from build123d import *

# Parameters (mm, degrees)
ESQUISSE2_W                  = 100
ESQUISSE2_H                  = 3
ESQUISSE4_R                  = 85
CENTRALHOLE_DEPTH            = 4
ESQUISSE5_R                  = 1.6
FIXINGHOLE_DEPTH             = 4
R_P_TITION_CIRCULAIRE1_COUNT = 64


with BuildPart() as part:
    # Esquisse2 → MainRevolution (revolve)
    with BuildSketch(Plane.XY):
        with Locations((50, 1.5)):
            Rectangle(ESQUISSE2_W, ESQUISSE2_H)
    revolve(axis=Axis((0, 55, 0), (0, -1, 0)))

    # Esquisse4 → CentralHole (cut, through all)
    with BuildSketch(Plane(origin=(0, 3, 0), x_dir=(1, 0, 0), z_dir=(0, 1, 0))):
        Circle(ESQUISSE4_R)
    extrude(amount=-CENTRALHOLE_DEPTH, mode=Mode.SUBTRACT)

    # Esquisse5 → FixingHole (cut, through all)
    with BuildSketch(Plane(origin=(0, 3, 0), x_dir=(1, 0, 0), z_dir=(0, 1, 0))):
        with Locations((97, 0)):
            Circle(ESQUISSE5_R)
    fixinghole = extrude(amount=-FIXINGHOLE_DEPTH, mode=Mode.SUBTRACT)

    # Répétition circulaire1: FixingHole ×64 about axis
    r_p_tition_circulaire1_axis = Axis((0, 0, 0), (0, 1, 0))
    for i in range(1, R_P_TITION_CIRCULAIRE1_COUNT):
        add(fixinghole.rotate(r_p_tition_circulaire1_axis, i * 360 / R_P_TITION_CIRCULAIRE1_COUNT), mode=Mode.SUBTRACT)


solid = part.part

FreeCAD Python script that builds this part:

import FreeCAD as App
import Part
import Sketcher

V = App.Vector
Q = App.Units.Quantity


def add_polygon(sketch, points):
    """Adds a closed chain of lines whose ends are joined by coincident constraints."""
    first, n = sketch.GeometryCount, len(points)
    for a, b in zip(points, points[1:] + points[:1]):
        sketch.addGeometry(Part.LineSegment(App.Vector(*a, 0), App.Vector(*b, 0)), False)
    for i in range(n):
        sketch.addConstraint(Sketcher.Constraint("Coincident", first + i, 2, first + (i + 1) % n, 1))

doc = App.newDocument("Part")
body = doc.addObject("PartDesign::Body", "Body")

# Sketch on XY plane
sketch1 = doc.addObject("Sketcher::SketchObject", "Sketch")
body.addObject(sketch1)
sketch1.AttachmentSupport = (doc.XY_Plane, [""])
sketch1.MapMode = "FlatFace"
add_polygon(sketch1, [(0, 3), (0, 0), (100, 0), (100, 3)])  # lines 0-3
sketch1.addConstraint([
    Sketcher.Constraint("Vertical", 0),
    Sketcher.Constraint("Horizontal", 1),
    Sketcher.Constraint("Vertical", 2),
    Sketcher.Constraint("Horizontal", 3),
    Sketcher.Constraint("Coincident", 0, 2, -1, 1),
    Sketcher.Constraint("DistanceX", 1, 1, 1, 2, Q("100 mm")),
    Sketcher.Constraint("DistanceY", 0, 2, 0, 1, Q("3 mm")),
])
revolution = doc.addObject("PartDesign::Revolution", "Revolution")
body.addObject(revolution)
revolution.Profile = sketch1
revolution.ReferenceAxis = (sketch1, ["V_Axis"])
revolution.Angle = 360

# Sketch on XZ plane
sketch2 = doc.addObject("Sketcher::SketchObject", "Sketch001")
body.addObject(sketch2)
sketch2.AttachmentSupport = (doc.XZ_Plane, [""])
sketch2.MapMode = "FlatFace"
sketch2.AttachmentOffset = App.Placement(V(0, 0, -3), App.Rotation())
sketch2.addGeometry(Part.Circle(V(0, 0, 0), V(0, 0, 1), 85), False)
sketch2.addConstraint([
    Sketcher.Constraint("Coincident", 0, 3, -1, 1),
    Sketcher.Constraint("Diameter", 0, Q("170 mm")),
])
pocket1 = doc.addObject("PartDesign::Pocket", "Pocket")
body.addObject(pocket1)
pocket1.Profile = sketch2
pocket1.Type = "ThroughAll"
pocket1.Reversed = True

# Sketch on XZ plane
sketch3 = doc.addObject("Sketcher::SketchObject", "Sketch002")
body.addObject(sketch3)
sketch3.AttachmentSupport = (doc.XZ_Plane, [""])
sketch3.MapMode = "FlatFace"
sketch3.AttachmentOffset = App.Placement(V(0, 0, -3), App.Rotation())
sketch3.addGeometry(Part.Circle(V(97, 0, 0), V(0, 0, 1), 1.6), False)
sketch3.addConstraint([
    Sketcher.Constraint("PointOnObject", 0, 3, -1),
    Sketcher.Constraint("Diameter", 0, Q("3.2 mm")),
    Sketcher.Constraint("DistanceX", -1, 1, 0, 3, Q("97 mm")),
])
pocket2 = doc.addObject("PartDesign::Pocket", "Pocket001")
body.addObject(pocket2)
pocket2.Profile = sketch3
pocket2.Type = "ThroughAll"
pocket2.Reversed = True
doc.recompute()

polarpattern = doc.addObject("PartDesign::PolarPattern", "PolarPattern")
body.addObject(polarpattern)
polarpattern.Originals = [pocket2]
polarpattern.Axis = (doc.Y_Axis, [""])
polarpattern.Angle = 360
polarpattern.Occurrences = 64
body.Tip = polarpattern

doc.recompute()
